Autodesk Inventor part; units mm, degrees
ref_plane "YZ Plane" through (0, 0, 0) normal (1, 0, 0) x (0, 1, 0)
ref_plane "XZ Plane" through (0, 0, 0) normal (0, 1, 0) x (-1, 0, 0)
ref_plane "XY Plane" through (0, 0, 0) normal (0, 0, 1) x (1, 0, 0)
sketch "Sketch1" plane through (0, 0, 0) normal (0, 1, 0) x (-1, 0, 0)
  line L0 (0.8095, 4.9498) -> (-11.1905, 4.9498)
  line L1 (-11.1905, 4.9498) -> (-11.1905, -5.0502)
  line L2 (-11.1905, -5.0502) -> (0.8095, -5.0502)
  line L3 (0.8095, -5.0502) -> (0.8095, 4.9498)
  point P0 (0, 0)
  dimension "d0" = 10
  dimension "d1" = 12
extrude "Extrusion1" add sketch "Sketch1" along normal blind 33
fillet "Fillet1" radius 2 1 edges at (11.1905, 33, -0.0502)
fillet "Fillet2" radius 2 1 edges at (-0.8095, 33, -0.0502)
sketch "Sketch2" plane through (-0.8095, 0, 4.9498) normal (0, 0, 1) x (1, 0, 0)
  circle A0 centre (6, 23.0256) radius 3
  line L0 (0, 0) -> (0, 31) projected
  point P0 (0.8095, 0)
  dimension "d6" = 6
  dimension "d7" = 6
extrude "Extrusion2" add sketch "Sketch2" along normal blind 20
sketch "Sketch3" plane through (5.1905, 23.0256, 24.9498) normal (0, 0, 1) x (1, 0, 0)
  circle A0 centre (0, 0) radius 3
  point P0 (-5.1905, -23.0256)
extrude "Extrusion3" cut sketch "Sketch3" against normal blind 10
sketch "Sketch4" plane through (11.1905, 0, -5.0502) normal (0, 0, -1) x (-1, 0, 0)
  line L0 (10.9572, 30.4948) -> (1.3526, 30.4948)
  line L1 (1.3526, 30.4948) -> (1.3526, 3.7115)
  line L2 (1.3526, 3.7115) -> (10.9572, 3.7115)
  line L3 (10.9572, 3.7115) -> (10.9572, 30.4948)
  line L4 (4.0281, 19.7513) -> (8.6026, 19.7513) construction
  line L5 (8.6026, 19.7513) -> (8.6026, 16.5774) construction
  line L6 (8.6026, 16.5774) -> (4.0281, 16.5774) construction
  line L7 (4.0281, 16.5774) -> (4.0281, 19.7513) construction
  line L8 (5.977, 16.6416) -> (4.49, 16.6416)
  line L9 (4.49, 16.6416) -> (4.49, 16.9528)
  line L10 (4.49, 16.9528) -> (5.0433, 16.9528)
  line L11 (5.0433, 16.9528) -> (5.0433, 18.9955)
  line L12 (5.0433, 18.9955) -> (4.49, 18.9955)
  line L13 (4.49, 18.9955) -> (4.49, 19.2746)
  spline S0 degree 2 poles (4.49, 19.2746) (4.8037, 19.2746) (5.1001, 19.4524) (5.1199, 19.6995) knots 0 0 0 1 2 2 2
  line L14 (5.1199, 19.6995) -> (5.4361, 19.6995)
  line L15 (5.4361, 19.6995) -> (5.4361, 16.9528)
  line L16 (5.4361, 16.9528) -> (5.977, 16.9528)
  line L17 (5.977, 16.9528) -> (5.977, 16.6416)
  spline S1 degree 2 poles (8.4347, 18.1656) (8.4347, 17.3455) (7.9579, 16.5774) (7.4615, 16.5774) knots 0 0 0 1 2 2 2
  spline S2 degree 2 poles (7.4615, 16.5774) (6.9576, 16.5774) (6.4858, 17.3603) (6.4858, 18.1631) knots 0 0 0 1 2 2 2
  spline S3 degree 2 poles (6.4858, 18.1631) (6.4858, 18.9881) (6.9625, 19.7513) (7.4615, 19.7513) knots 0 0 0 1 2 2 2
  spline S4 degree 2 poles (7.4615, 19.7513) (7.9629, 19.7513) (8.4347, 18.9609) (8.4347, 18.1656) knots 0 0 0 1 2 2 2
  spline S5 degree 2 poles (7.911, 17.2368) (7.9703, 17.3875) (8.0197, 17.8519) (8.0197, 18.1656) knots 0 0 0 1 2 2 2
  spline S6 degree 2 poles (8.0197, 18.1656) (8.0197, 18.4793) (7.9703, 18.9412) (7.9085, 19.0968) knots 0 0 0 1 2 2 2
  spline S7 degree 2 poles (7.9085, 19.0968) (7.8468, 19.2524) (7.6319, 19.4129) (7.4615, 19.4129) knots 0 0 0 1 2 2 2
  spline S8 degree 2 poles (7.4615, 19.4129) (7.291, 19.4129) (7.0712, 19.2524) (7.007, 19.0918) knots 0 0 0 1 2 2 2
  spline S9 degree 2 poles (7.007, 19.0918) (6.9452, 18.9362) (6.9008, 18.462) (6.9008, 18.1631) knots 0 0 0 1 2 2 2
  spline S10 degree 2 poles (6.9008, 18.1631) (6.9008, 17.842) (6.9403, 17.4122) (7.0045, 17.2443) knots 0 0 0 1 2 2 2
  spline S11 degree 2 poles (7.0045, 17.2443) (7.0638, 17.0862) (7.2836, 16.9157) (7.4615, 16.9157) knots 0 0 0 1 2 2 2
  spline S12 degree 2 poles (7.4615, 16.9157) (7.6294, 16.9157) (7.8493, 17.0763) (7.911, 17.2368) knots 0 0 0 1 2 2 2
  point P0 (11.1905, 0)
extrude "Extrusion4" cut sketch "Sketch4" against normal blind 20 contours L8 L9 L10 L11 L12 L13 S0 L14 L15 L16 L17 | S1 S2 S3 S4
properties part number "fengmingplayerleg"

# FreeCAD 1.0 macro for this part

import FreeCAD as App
import Part
import Sketcher


def edges_at(feature, points):
    """Names of the edges that pass closest to the given points."""
    edges = feature.Shape.Edges
    near = lambda p: min(range(len(edges)), key=lambda i: edges[i].distToShape(Part.Vertex(*p))[0])
    return sorted({f"Edge{near(p) + 1}" for p in points})


def add_polygon(sketch, points):
    """Adds a closed chain of lines whose ends are joined by coincident constraints."""
    first, n = sketch.GeometryCount, len(points)
    for a, b in zip(points, points[1:] + points[:1]):
        sketch.addGeometry(Part.LineSegment(App.Vector(*a, 0), App.Vector(*b, 0)), False)
    for i in range(n):
        sketch.addConstraint(Sketcher.Constraint("Coincident", first + i, 2, first + (i + 1) % n, 1))

doc = App.newDocument("Part")
body = doc.addObject("PartDesign::Body", "Body")
body.AllowCompound = True

# Sketch on XZ plane
sketch1 = body.newObject("Sketcher::SketchObject", "Sketch")
sketch1.AttachmentSupport = (doc.getObject("XZ_Plane"), [""])
sketch1.MapMode = "FlatFace"
add_polygon(sketch1, [(-1, -5), (-1, 5), (11, 5), (11, -5)])  # lines 0-3
sketch1.addConstraint([
    Sketcher.Constraint("Vertical", 0),
    Sketcher.Constraint("Horizontal", 1),
    Sketcher.Constraint("Vertical", 2),
    Sketcher.Constraint("Horizontal", 3),
    Sketcher.Constraint("DistanceX", 1, 1, 1, 2, 12.0),
    Sketcher.Constraint("DistanceY", 0, 1, 0, 2, 10.0),
    Sketcher.Constraint("DistanceX", 0, 2, -1, 1, 0.8095),
    Sketcher.Constraint("DistanceY", -1, 1, 0, 2, 4.9498),
])
pad1 = body.newObject("PartDesign::Pad", "Pad")
pad1.Profile = sketch1
pad1.Length = 33
pad1.Reversed = True
doc.recompute()

fillet = body.newObject("PartDesign::Fillet", "Fillet")
fillet.Base = (pad1, edges_at(pad1, [(11.191, 33, -0.05)]))
fillet.Radius = 2
doc.recompute()

fillet2 = body.newObject("PartDesign::Fillet", "Fillet001")
fillet2.Base = (fillet, edges_at(fillet, [(-0.809, 33, -0.05)]))
fillet2.Radius = 2

# Sketch on XY plane
sketch2 = body.newObject("Sketcher::SketchObject", "Sketch001")
sketch2.AttachmentSupport = (doc.getObject("XY_Plane"), [""])
sketch2.MapMode = "FlatFace"
sketch2.AttachmentOffset = App.Placement(App.Vector(0, 0, 4.9498), App.Rotation())
sketch2.addGeometry(Part.Circle(App.Vector(5.2, 23, 0), App.Vector(0, 0, 1), 3), False)
sketch2.addConstraint([
    Sketcher.Constraint("Diameter", 0, 6.0),
    Sketcher.Constraint("DistanceX", -1, 1, 0, 3, 5.1905),
    Sketcher.Constraint("DistanceY", -1, 1, 0, 3, 23.0256),
])
pad2 = body.newObject("PartDesign::Pad", "Pad001")
pad2.Profile = sketch2
pad2.Length = 20

# Sketch on XY plane
sketch3 = body.newObject("Sketcher::SketchObject", "Sketch002")
sketch3.AttachmentSupport = (doc.getObject("XY_Plane"), [""])
sketch3.MapMode = "FlatFace"
sketch3.AttachmentOffset = App.Placement(App.Vector(0, 0, 24.9498), App.Rotation())
sketch3.addGeometry(Part.Circle(App.Vector(5.2, 23, 0), App.Vector(0, 0, 1), 3), False)
sketch3.addConstraint([
    Sketcher.Constraint("Diameter", 0, 6.0),
    Sketcher.Constraint("DistanceX", -1, 1, 0, 3, 5.1905),
    Sketcher.Constraint("DistanceY", -1, 1, 0, 3, 23.0256),
])
pocket1 = body.newObject("PartDesign::Pocket", "Pocket")
pocket1.Profile = sketch3
pocket1.Length = 10

# Sketch on XY plane
sketch4 = body.newObject("Sketcher::SketchObject", "Sketch003")
sketch4.AttachmentSupport = (doc.getObject("XY_Plane"), [""])
sketch4.MapMode = "FlatFace"
sketch4.AttachmentOffset = App.Placement(App.Vector(0, 0, -5.0502), App.Rotation())
sketch4.addGeometry([
    Part.LineSegment(App.Vector(6.7005, 16.6416, 0), App.Vector(5.2135, 16.6416, 0)),  # 0
    Part.LineSegment(App.Vector(5.2135, 16.6416, 0), App.Vector(5.2135, 16.9528, 0)),  # 1
    Part.LineSegment(App.Vector(5.2135, 16.9528, 0), App.Vector(5.7544, 16.9528, 0)),  # 2
    Part.LineSegment(App.Vector(5.7544, 16.9528, 0), App.Vector(5.7544, 19.6995, 0)),  # 3
    Part.LineSegment(App.Vector(5.7544, 19.6995, 0), App.Vector(6.0706, 19.6995, 0)),  # 4
    Part.BSplineCurve([App.Vector(6.7005, 19.2746, 0), App.Vector(6.3868, 19.2746, 0), App.Vector(6.0904, 19.4524, 0), App.Vector(6.0706, 19.6995, 0)], [3, 1, 3], [0, 1, 2], False, 2, [1, 1, 1, 1], False),  # 5
    Part.LineSegment(App.Vector(6.7005, 19.2746, 0), App.Vector(6.7005, 18.9955, 0)),  # 6
    Part.LineSegment(App.Vector(6.7005, 18.9955, 0), App.Vector(6.1472, 18.9955, 0)),  # 7
    Part.LineSegment(App.Vector(6.1472, 18.9955, 0), App.Vector(6.1472, 16.9528, 0)),  # 8
    Part.LineSegment(App.Vector(6.1472, 16.9528, 0), App.Vector(6.7005, 16.9528, 0)),  # 9
    Part.LineSegment(App.Vector(6.7005, 16.9528, 0), App.Vector(6.7005, 16.6416, 0)),  # 10
    Part.BSplineCurve([App.Vector(2.7558, 18.1656, 0), App.Vector(2.7558, 17.3455, 0), App.Vector(3.2326, 16.5774, 0), App.Vector(3.729, 16.5774, 0)], [3, 1, 3], [0, 1, 2], False, 2, [1, 1, 1, 1], False),  # 11
    Part.BSplineCurve([App.Vector(3.729, 19.7513, 0), App.Vector(3.2276, 19.7513, 0), App.Vector(2.7558, 18.9609, 0), App.Vector(2.7558, 18.1656, 0)], [3, 1, 3], [0, 1, 2], False, 2, [1, 1, 1, 1], False),  # 12
    Part.BSplineCurve([App.Vector(4.7047, 18.1631, 0), App.Vector(4.7047, 18.9881, 0), App.Vector(4.228, 19.7513, 0), App.Vector(3.729, 19.7513, 0)], [3, 1, 3], [0, 1, 2], False, 2, [1, 1, 1, 1], False),  # 13
    Part.BSplineCurve([App.Vector(3.729, 16.5774, 0), App.Vector(4.2329, 16.5774, 0), App.Vector(4.7047, 17.3603, 0), App.Vector(4.7047, 18.1631, 0)], [3, 1, 3], [0, 1, 2], False, 2, [1, 1, 1, 1], False),  # 14
    Part.BSplineCurve([App.Vector(3.2795, 17.2368, 0), App.Vector(3.2202, 17.3875, 0), App.Vector(3.1708, 17.8519, 0), App.Vector(3.1708, 18.1656, 0)], [3, 1, 3], [0, 1, 2], False, 2, [1, 1, 1, 1], False),  # 15
    Part.BSplineCurve([App.Vector(3.729, 16.9157, 0), App.Vector(3.5611, 16.9157, 0), App.Vector(3.3412, 17.0763, 0), App.Vector(3.2795, 17.2368, 0)], [3, 1, 3], [0, 1, 2], False, 2, [1, 1, 1, 1], False),  # 16
    Part.BSplineCurve([App.Vector(4.186, 17.2443, 0), App.Vector(4.1267, 17.0862, 0), App.Vector(3.9069, 16.9157, 0), App.Vector(3.729, 16.9157, 0)], [3, 1, 3], [0, 1, 2], False, 2, [1, 1, 1, 1], False),  # 17
    Part.BSplineCurve([App.Vector(4.2897, 18.1631, 0), App.Vector(4.2897, 17.842, 0), App.Vector(4.2502, 17.4122, 0), App.Vector(4.186, 17.2443, 0)], [3, 1, 3], [0, 1, 2], False, 2, [1, 1, 1, 1], False),  # 18
    Part.BSplineCurve([App.Vector(4.1835, 19.0918, 0), App.Vector(4.2453, 18.9362, 0), App.Vector(4.2897, 18.462, 0), App.Vector(4.2897, 18.1631, 0)], [3, 1, 3], [0, 1, 2], False, 2, [1, 1, 1, 1], False),  # 19
    Part.BSplineCurve([App.Vector(3.729, 19.4129, 0), App.Vector(3.8995, 19.4129, 0), App.Vector(4.1193, 19.2524, 0), App.Vector(4.1835, 19.0918, 0)], [3, 1, 3], [0, 1, 2], False, 2, [1, 1, 1, 1], False),  # 20
    Part.BSplineCurve([App.Vector(3.282, 19.0968, 0), App.Vector(3.3437, 19.2524, 0), App.Vector(3.5586, 19.4129, 0), App.Vector(3.729, 19.4129, 0)], [3, 1, 3], [0, 1, 2], False, 2, [1, 1, 1, 1], False),  # 21
    Part.BSplineCurve([App.Vector(3.1708, 18.1656, 0), App.Vector(3.1708, 18.4793, 0), App.Vector(3.2202, 18.9412, 0), App.Vector(3.282, 19.0968, 0)], [3, 1, 3], [0, 1, 2], False, 2, [1, 1, 1, 1], False),  # 22
], False)
sketch4.addConstraint([
    Sketcher.Constraint("Block", 5),
    Sketcher.Constraint("Block", 11),
    Sketcher.Constraint("Block", 12),
    Sketcher.Constraint("Block", 13),
    Sketcher.Constraint("Block", 14),
    Sketcher.Constraint("Block", 15),
    Sketcher.Constraint("Block", 16),
    Sketcher.Constraint("Block", 17),
    Sketcher.Constraint("Block", 18),
    Sketcher.Constraint("Block", 19),
    Sketcher.Constraint("Block", 20),
    Sketcher.Constraint("Block", 21),
    Sketcher.Constraint("Block", 22),
    Sketcher.Constraint("Coincident", 0, 2, 1, 1),
    Sketcher.Constraint("Coincident", 1, 2, 2, 1),
    Sketcher.Constraint("Coincident", 2, 2, 3, 1),
    Sketcher.Constraint("Coincident", 3, 2, 4, 1),
    Sketcher.Constraint("Coincident", 4, 2, 5, 2),
    Sketcher.Constraint("Coincident", 5, 1, 6, 1),
    Sketcher.Constraint("Coincident", 6, 2, 7, 1),
    Sketcher.Constraint("Coincident", 7, 2, 8, 1),
    Sketcher.Constraint("Coincident", 8, 2, 9, 1),
    Sketcher.Constraint("Coincident", 9, 2, 10, 1),
    Sketcher.Constraint("Coincident", 10, 2, 0, 1),
    Sketcher.Constraint("Horizontal", 0),
    Sketcher.Constraint("Vertical", 1),
    Sketcher.Constraint("Horizontal", 2),
    Sketcher.Constraint("Vertical", 3),
    Sketcher.Constraint("Horizontal", 4),
    Sketcher.Constraint("Vertical", 6),
    Sketcher.Constraint("Horizontal", 7),
    Sketcher.Constraint("Vertical", 8),
    Sketcher.Constraint("Horizontal", 9),
    Sketcher.Constraint("Vertical", 10),
    Sketcher.Constraint("Horizontal", 2, 2, 8, 2),
    Sketcher.Constraint("Vertical", 6, 2, 9, 2),
    Sketcher.Constraint("DistanceX", 0, 2, 0, 1, 1.487),
    Sketcher.Constraint("DistanceX", 2, 1, 2, 2, 0.541),
    Sketcher.Constraint("DistanceY", 6, 2, 6, 1, 0.279),
    Sketcher.Constraint("DistanceX", 7, 2, 7, 1, 0.5533),
    Sketcher.Constraint("DistanceY", 1, 1, 1, 2, 0.3112),
    Sketcher.Constraint("DistanceY", 3, 1, 3, 2, 2.7467),
])
pocket2 = body.newObject("PartDesign::Pocket", "Pocket001")
pocket2.Profile = sketch4
pocket2.Length = 20
pocket2.Reversed = True

doc.recompute()
